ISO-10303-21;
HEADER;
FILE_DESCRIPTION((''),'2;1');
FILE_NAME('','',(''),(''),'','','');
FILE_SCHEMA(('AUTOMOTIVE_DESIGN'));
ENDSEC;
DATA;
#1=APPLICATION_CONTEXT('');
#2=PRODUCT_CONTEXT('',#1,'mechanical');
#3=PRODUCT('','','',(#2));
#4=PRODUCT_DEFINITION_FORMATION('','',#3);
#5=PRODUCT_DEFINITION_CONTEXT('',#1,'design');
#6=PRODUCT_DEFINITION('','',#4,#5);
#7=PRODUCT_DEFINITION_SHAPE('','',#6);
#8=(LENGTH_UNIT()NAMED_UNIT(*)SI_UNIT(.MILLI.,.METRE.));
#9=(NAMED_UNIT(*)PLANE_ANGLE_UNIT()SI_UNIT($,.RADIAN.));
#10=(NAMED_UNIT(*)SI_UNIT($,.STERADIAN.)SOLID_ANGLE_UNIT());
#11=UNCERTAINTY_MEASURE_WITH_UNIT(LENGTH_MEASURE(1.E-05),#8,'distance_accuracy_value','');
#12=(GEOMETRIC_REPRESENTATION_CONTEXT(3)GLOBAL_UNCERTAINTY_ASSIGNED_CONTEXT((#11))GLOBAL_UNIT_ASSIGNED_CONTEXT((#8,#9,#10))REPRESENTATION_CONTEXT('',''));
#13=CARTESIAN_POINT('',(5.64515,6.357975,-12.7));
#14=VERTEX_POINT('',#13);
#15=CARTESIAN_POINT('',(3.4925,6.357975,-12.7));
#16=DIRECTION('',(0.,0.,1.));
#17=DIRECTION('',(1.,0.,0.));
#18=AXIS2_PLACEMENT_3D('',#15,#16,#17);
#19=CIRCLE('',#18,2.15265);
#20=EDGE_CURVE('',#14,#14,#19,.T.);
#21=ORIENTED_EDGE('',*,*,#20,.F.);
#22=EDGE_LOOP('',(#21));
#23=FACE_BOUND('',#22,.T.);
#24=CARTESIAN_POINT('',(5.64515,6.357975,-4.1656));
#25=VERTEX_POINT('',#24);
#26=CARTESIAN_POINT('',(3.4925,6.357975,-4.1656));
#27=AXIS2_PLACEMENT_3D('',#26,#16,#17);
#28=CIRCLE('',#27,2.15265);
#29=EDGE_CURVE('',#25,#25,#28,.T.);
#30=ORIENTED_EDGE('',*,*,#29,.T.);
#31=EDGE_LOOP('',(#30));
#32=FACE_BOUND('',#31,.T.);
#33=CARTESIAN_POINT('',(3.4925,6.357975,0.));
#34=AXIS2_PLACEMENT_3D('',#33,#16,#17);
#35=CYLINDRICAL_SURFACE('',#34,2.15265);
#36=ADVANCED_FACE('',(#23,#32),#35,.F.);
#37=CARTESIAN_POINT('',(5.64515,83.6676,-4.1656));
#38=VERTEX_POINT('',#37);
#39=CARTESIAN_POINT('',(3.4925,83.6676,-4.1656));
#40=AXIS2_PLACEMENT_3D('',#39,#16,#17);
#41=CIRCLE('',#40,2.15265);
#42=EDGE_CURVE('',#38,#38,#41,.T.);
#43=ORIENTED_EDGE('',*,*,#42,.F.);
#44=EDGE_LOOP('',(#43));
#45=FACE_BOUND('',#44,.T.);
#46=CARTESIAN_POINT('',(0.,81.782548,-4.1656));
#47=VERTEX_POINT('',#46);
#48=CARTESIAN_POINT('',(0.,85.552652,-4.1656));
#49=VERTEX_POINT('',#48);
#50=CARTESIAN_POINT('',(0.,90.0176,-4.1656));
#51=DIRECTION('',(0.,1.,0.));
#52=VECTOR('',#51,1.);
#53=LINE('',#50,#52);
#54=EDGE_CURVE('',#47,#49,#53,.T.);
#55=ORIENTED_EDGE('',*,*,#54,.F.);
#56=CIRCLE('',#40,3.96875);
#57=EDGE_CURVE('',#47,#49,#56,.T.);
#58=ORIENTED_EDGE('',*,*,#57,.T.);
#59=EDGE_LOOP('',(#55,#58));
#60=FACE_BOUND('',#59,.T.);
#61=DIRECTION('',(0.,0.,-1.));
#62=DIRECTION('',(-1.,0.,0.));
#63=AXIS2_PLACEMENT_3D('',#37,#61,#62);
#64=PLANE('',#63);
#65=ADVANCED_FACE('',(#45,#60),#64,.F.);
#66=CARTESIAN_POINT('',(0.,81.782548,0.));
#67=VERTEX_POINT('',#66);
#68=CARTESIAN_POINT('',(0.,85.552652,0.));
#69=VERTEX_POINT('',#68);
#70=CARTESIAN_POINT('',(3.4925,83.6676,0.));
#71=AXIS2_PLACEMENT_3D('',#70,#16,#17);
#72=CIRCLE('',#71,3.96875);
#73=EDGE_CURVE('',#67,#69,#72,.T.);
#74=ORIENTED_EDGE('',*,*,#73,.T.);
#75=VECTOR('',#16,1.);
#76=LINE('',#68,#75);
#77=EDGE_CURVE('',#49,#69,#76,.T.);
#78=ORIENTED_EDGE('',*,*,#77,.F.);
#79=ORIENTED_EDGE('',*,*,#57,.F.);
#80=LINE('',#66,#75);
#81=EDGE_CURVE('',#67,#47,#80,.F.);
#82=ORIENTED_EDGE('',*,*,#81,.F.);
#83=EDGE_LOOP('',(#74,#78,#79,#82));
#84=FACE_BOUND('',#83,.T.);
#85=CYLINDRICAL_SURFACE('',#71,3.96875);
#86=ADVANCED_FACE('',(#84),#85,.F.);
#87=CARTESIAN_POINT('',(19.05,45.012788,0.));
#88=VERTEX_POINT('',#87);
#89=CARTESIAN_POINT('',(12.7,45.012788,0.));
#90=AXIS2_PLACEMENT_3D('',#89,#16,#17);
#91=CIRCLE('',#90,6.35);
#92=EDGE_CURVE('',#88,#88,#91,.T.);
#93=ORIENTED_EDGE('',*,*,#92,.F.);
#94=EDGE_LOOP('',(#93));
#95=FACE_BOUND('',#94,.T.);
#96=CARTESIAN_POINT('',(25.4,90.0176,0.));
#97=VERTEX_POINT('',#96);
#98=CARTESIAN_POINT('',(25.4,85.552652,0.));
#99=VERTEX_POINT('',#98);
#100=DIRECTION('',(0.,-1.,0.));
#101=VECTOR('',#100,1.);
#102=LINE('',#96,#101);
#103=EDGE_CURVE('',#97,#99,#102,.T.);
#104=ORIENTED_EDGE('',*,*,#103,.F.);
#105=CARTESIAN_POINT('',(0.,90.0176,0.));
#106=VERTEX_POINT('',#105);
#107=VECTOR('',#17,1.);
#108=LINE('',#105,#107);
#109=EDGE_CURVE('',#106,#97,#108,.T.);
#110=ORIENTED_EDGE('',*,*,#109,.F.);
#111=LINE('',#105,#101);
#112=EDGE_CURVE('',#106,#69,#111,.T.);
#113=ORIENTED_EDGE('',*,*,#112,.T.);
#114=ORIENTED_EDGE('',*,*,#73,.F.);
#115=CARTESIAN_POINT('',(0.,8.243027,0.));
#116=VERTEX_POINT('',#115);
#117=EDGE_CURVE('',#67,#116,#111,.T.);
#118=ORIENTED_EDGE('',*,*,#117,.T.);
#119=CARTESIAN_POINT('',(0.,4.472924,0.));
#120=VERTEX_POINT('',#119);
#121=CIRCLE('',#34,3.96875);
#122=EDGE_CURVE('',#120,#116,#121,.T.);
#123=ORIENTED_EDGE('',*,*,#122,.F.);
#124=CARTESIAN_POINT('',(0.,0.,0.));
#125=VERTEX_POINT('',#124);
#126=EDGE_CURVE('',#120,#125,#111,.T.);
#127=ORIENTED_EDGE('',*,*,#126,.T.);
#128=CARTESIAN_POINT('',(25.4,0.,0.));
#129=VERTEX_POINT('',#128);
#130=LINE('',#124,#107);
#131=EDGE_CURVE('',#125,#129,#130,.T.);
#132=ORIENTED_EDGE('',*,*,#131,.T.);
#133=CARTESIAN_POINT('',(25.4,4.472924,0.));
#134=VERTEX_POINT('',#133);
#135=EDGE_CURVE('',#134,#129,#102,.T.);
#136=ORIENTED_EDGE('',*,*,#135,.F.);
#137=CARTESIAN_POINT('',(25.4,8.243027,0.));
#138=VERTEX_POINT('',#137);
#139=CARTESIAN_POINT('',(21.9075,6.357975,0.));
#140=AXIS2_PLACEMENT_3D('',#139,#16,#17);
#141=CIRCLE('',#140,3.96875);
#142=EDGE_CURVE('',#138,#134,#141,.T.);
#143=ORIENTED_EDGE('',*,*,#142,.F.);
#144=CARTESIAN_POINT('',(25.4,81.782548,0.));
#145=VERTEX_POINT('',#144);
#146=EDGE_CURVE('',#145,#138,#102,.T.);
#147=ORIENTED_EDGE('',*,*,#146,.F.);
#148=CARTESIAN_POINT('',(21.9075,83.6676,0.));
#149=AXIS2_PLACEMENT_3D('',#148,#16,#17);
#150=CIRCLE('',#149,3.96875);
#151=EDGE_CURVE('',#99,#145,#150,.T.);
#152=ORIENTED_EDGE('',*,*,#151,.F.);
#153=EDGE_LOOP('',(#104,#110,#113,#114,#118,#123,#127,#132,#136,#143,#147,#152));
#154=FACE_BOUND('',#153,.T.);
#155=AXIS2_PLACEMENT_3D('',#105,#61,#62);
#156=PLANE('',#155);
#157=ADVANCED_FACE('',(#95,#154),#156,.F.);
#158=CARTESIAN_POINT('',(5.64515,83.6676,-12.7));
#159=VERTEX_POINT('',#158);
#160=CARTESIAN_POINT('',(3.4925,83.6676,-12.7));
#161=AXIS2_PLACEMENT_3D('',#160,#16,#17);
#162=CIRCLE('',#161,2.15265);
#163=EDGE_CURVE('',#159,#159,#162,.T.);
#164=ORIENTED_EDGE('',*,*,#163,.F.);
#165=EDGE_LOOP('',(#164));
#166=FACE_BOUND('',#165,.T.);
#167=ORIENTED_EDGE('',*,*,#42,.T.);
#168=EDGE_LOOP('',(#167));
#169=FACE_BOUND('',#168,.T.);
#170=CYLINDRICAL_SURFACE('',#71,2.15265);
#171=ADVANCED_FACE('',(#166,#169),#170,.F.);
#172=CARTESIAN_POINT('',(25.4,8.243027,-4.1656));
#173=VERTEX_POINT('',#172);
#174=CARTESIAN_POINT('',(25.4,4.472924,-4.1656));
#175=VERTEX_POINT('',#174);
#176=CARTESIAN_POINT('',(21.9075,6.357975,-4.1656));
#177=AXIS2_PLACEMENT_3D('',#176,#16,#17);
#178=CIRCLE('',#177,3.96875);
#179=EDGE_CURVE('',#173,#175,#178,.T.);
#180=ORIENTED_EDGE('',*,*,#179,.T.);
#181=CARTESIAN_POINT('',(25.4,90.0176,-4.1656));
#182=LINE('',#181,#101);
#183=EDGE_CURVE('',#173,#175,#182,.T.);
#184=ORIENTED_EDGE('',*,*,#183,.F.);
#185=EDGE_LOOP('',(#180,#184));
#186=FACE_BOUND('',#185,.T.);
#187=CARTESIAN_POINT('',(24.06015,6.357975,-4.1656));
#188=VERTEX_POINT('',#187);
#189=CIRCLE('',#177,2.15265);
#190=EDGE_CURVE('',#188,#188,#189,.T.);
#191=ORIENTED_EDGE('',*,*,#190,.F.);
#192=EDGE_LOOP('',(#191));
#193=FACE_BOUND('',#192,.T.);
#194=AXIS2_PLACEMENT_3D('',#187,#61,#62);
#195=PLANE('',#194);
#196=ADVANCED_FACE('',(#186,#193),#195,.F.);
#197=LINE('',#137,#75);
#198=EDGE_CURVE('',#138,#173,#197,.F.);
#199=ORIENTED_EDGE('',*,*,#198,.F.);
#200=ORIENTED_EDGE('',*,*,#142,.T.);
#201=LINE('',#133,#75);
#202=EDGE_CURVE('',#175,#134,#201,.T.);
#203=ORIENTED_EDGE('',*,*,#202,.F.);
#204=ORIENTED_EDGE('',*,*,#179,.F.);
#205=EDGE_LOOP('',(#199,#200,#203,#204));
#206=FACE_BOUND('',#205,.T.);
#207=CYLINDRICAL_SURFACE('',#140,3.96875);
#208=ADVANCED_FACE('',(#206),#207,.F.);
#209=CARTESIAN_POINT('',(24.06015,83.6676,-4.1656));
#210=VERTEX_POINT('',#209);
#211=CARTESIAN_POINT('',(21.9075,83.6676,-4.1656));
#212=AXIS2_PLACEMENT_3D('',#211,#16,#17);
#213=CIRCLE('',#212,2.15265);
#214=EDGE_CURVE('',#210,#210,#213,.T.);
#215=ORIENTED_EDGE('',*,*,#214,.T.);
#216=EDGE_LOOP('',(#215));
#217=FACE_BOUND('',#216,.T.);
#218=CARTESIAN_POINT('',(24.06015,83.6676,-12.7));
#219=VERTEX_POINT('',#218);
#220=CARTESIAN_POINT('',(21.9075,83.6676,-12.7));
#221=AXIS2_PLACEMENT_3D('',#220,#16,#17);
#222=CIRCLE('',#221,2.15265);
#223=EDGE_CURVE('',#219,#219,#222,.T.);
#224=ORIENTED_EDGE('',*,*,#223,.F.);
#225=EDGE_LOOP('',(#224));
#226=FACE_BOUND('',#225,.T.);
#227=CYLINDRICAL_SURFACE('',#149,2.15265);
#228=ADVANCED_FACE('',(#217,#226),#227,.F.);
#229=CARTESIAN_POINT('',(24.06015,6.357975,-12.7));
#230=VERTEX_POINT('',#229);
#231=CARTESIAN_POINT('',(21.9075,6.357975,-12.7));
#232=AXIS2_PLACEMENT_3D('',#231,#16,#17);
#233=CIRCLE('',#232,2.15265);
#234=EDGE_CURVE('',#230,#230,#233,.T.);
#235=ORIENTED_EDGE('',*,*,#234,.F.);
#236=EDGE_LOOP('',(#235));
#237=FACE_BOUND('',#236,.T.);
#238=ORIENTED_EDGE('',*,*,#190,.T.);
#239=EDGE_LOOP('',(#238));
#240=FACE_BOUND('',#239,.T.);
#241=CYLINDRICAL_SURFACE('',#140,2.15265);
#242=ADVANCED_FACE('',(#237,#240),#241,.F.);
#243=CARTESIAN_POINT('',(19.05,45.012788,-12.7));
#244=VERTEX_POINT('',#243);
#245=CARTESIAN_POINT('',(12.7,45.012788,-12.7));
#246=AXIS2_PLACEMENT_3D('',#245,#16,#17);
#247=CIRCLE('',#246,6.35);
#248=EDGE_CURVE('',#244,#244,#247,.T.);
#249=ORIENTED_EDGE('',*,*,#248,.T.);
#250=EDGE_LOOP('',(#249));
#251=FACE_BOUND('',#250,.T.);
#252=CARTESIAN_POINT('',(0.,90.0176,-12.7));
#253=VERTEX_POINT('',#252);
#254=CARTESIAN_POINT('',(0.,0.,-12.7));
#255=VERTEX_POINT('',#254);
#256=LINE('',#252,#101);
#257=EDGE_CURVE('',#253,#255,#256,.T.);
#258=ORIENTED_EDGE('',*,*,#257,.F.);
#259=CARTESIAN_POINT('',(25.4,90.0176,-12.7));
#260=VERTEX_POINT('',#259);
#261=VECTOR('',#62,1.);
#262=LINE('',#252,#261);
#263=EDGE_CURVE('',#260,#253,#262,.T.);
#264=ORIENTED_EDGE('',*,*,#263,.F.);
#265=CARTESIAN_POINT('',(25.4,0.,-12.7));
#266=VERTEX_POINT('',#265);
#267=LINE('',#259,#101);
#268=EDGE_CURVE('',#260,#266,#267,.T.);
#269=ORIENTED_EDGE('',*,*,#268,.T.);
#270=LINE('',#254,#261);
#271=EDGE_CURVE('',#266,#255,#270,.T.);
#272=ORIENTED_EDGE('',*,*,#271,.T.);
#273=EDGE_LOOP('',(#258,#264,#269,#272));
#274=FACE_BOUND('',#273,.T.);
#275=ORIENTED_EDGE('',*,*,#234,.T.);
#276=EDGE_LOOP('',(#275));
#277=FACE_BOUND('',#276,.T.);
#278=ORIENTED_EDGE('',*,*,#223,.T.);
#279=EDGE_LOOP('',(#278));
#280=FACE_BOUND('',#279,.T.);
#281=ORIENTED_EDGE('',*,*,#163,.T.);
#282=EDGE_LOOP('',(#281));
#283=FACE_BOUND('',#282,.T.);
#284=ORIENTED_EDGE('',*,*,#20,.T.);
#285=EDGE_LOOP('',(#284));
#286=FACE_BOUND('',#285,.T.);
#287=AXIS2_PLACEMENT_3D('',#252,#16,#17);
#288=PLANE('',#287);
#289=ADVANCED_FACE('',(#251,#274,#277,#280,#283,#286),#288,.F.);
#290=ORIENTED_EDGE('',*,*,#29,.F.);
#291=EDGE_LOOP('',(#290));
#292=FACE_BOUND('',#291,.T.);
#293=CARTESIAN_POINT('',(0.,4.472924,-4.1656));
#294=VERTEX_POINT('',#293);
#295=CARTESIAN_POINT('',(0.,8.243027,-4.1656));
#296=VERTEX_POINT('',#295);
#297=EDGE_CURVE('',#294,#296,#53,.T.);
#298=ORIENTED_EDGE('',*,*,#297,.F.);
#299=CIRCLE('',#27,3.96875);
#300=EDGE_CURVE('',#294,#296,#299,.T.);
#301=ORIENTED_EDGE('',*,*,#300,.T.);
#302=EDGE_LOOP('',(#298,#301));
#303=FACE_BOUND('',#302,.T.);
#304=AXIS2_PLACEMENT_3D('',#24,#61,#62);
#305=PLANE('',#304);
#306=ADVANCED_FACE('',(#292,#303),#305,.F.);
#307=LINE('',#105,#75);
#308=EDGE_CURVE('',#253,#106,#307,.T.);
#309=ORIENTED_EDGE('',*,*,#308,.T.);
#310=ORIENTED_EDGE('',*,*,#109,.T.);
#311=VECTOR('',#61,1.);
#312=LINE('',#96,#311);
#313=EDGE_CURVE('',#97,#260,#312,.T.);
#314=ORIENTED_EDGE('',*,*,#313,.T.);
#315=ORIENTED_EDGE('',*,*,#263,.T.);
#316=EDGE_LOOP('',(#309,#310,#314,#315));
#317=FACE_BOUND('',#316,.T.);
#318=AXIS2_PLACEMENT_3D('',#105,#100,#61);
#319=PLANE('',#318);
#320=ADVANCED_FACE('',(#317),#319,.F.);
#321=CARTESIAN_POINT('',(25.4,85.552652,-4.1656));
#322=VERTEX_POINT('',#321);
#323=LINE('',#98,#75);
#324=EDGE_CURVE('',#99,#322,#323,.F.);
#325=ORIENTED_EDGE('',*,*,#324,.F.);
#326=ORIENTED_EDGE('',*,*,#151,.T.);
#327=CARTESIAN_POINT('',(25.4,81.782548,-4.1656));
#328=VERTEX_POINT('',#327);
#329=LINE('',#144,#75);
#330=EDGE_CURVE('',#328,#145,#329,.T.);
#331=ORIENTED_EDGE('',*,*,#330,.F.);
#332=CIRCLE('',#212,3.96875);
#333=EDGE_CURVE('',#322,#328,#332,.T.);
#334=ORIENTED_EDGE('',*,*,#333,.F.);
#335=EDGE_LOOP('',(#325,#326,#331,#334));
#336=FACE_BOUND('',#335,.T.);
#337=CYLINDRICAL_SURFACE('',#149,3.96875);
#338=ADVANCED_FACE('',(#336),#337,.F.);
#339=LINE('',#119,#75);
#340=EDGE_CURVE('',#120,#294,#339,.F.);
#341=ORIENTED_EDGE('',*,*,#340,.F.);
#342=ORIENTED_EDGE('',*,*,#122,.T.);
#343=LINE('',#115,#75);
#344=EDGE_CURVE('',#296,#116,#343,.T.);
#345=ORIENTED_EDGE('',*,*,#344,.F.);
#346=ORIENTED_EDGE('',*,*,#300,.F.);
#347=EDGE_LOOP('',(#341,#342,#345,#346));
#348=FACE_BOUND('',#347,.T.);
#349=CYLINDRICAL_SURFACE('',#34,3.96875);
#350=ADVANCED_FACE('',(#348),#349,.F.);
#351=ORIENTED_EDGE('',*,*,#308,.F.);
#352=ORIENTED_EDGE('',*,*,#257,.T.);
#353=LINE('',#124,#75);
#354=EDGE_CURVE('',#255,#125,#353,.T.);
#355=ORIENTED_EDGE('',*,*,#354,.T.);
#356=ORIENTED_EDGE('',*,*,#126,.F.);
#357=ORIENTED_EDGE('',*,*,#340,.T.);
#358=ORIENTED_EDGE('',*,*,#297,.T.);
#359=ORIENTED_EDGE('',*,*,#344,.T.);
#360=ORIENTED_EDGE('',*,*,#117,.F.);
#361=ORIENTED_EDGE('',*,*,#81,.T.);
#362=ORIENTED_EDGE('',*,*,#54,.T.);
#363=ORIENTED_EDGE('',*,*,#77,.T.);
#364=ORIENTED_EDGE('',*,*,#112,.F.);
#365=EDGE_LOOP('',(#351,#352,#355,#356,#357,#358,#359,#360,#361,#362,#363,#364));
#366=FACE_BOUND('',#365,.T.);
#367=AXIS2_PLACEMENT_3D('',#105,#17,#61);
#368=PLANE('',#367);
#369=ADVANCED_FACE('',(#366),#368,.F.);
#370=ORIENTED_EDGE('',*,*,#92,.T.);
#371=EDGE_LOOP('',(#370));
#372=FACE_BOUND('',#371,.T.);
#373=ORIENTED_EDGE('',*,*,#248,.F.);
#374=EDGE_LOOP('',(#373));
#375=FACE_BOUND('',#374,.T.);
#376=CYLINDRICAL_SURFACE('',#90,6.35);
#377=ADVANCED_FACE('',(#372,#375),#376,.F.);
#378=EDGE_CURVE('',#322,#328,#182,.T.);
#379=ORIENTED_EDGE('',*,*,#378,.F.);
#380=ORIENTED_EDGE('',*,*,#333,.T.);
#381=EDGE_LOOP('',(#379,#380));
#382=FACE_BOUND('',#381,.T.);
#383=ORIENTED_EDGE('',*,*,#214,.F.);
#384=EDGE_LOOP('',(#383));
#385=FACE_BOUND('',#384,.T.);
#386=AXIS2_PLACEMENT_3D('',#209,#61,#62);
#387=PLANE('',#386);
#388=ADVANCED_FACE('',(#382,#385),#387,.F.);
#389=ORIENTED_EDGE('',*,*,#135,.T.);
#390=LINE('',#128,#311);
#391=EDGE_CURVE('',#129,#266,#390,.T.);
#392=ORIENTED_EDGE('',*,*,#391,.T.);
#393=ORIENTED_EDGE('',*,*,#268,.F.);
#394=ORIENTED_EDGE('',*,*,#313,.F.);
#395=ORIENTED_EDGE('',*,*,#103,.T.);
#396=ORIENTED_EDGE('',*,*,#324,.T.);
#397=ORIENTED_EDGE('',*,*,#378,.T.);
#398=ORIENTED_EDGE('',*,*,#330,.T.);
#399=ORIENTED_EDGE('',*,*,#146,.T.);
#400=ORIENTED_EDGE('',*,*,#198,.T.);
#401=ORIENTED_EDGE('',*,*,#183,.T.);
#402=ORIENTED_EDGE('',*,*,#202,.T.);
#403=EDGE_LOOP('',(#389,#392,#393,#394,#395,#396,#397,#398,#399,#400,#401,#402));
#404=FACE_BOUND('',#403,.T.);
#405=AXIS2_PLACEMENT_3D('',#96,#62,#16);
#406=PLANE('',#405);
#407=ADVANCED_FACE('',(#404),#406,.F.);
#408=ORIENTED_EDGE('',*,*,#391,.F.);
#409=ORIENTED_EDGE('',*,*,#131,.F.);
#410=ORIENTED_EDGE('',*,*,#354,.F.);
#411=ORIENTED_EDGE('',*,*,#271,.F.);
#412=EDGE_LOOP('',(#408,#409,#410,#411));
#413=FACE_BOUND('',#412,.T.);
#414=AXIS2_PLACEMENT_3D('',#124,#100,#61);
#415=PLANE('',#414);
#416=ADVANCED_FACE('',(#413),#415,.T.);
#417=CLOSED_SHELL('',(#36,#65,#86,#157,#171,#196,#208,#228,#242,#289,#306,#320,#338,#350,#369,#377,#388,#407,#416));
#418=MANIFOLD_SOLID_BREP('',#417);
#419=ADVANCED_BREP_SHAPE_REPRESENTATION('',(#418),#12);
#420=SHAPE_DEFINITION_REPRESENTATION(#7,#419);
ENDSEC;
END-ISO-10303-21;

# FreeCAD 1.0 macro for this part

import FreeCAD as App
import Part
import Sketcher
from FreeCAD import Vector
Q = App.Units.Quantity

doc = App.newDocument("Part")
params = doc.addObject("Spreadsheet::Sheet", "Params")
for row, (alias, value) in enumerate([
    ("sketch1_width", "1 in"),
    ("sketch1_height", "0.5 in"),
    ("pad1_length", "3.544 in"),
    ("hole_diameter", "0.1695 in"),
    ("hole_depth", "0.75 in"),
    ("hole_cbore_diameter", "0.3125 in"),
    ("hole_cbore_depth", "0.164 in"),
    ("sketch3_diameter", "0.5 in"),
    ("hole2_diameter", "0.5 in"),
    ("hole2_depth", "0.6 in"),
], start=1):
    params.set(f"A{row}", alias)
    params.set(f"B{row}", "=" + value)
    params.setAlias(f"B{row}", alias)

body = doc.addObject("PartDesign::Body", "Body")

# Sketch on XZ plane
sketch1 = body.newObject("Sketcher::SketchObject", "Sketch")
sketch1.AttachmentSupport = (doc.getObject("XZ_Plane"), [""])
sketch1.MapMode = "FlatFace"
sketch1.addGeometry(Part.LineSegment(Vector(0, -13, 0), Vector(0, 0, 0)), False)
sketch1.addGeometry(Part.LineSegment(Vector(0, 0, 0), Vector(25, 0, 0)), False)
sketch1.addGeometry(Part.LineSegment(Vector(25, 0, 0), Vector(25, -13, 0)), False)
sketch1.addGeometry(Part.LineSegment(Vector(25, -13, 0), Vector(0, -13, 0)), False)
sketch1.addConstraint(Sketcher.Constraint("Coincident", 0, 2, 1, 1))
sketch1.addConstraint(Sketcher.Constraint("Coincident", 1, 2, 2, 1))
sketch1.addConstraint(Sketcher.Constraint("Coincident", 2, 2, 3, 1))
sketch1.addConstraint(Sketcher.Constraint("Coincident", 3, 2, 0, 1))
sketch1.addConstraint(Sketcher.Constraint("Vertical", 0))
sketch1.addConstraint(Sketcher.Constraint("Horizontal", 1))
sketch1.addConstraint(Sketcher.Constraint("Vertical", 2))
sketch1.addConstraint(Sketcher.Constraint("Horizontal", 3))
sketch1.addConstraint(Sketcher.Constraint("Coincident", 0, 2, -1, 1))
sketch1.addConstraint(Sketcher.Constraint("DistanceX", 1, 1, 1, 2, Q("1 in")))
sketch1.addConstraint(Sketcher.Constraint("DistanceY", 0, 1, 0, 2, Q("0.5 in")))
sketch1.setExpression("Constraints[9]", "Params.sketch1_width")
sketch1.setExpression("Constraints[10]", "Params.sketch1_height")
pad1 = body.newObject("PartDesign::Pad", "Pad")
pad1.Profile = sketch1
pad1.setExpression("Length", "Params.pad1_length")
pad1.Reversed = True

# Sketch on XY plane
sketch2 = body.newObject("Sketcher::SketchObject", "Sketch001")
sketch2.AttachmentSupport = (doc.getObject("XY_Plane"), [""])
sketch2.MapMode = "FlatFace"
sketch2.addGeometry(Part.Circle(Vector(3.5, 6.4, 0), Vector(0, 0, 1), 2.2), False)
sketch2.addGeometry(Part.Circle(Vector(21.9, 6.4, 0), Vector(0, 0, 1), 2.2), False)
sketch2.addGeometry(Part.Circle(Vector(21.9, 83.7, 0), Vector(0, 0, 1), 2.2), False)
sketch2.addGeometry(Part.Circle(Vector(3.5, 83.7, 0), Vector(0, 0, 1), 2.2), False)
sketch2.addConstraint(Sketcher.Constraint("Equal", 0, 1))
sketch2.addConstraint(Sketcher.Constraint("Equal", 1, 2))
sketch2.addConstraint(Sketcher.Constraint("Equal", 2, 3))
sketch2.addConstraint(Sketcher.Constraint("Horizontal", 0, 3, 1, 3))
sketch2.addConstraint(Sketcher.Constraint("Horizontal", 2, 3, 3, 3))
sketch2.addConstraint(Sketcher.Constraint("Vertical", 1, 3, 2, 3))
sketch2.addConstraint(Sketcher.Constraint("Vertical", 0, 3, 3, 3))
sketch2.addConstraint(Sketcher.Constraint("Diameter", 0, Q("0.1695 in")))
sketch2.addConstraint(Sketcher.Constraint("DistanceY", -1, 1, 2, 3, Q("3.294 in")))
sketch2.addConstraint(Sketcher.Constraint("DistanceX", 0, 3, 1, 3, Q("0.725 in")))
sketch2.addConstraint(Sketcher.Constraint("DistanceX", -1, 1, 0, 3, Q("0.1375 in")))
sketch2.addConstraint(Sketcher.Constraint("DistanceY", -1, 1, 0, 3, 6.357975))
doc.recompute()
hole = body.newObject("PartDesign::Hole", "Hole")
hole.Profile = sketch2
hole.ThreadType = "None"
hole.setExpression("Diameter", "Params.hole_diameter")
hole.DepthType = "Dimension"
hole.setExpression("Depth", "Params.hole_depth")
hole.DrillPoint = "Angled"
hole.DrillPointAngle = 118
hole.HoleCutType = "Counterbore"
hole.setExpression("HoleCutDiameter", "Params.hole_cbore_diameter")
hole.setExpression("HoleCutDepth", "Params.hole_cbore_depth")

# Sketch on XY plane
sketch3 = body.newObject("Sketcher::SketchObject", "Sketch002")
sketch3.AttachmentSupport = (doc.getObject("XY_Plane"), [""])
sketch3.MapMode = "FlatFace"
sketch3.addGeometry(Part.Circle(Vector(13, 45, 0), Vector(0, 0, 1), 6), False)
sketch3.addConstraint(Sketcher.Constraint("Diameter", 0, Q("0.5 in")))
sketch3.addConstraint(Sketcher.Constraint("DistanceX", -1, 1, 0, 3, Q("0.5 in")))
sketch3.addConstraint(Sketcher.Constraint("DistanceY", -1, 1, 0, 3, 45.012788))
sketch3.setExpression("Constraints[0]", "Params.sketch3_diameter")
doc.recompute()
hole2 = body.newObject("PartDesign::Hole", "Hole001")
hole2.Profile = sketch3
hole2.ThreadType = "None"
hole2.setExpression("Diameter", "Params.hole2_diameter")
hole2.DepthType = "Dimension"
hole2.setExpression("Depth", "Params.hole2_depth")
hole2.DrillPoint = "Angled"
hole2.DrillPointAngle = 118

doc.recompute()
